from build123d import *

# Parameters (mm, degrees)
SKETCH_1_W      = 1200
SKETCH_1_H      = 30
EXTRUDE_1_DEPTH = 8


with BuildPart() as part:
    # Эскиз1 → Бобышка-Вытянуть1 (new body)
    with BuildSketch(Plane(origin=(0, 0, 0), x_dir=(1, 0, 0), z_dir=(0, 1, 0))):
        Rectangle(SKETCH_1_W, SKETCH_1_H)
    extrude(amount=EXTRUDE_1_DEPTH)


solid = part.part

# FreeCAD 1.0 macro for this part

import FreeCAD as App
import Part
import Sketcher

V = App.Vector
Q = App.Units.Quantity


def add_polygon(sketch, points):
    """Adds a closed chain of lines whose ends are joined by coincident constraints."""
    first, n = sketch.GeometryCount, len(points)
    for a, b in zip(points, points[1:] + points[:1]):
        sketch.addGeometry(Part.LineSegment(App.Vector(*a, 0), App.Vector(*b, 0)), False)
    for i in range(n):
        sketch.addConstraint(Sketcher.Constraint("Coincident", first + i, 2, first + (i + 1) % n, 1))

doc = App.newDocument("Part")
params = doc.addObject("Spreadsheet::Sheet", "Params")
for row, (alias, value) in enumerate([
    ("sketch1_width", "1200 mm"),
    ("sketch1_height", "30 mm"),
    ("pad1_length", "8 mm"),
], start=1):
    params.set(f"A{row}", alias)
    params.set(f"B{row}", "=" + value)
    params.setAlias(f"B{row}", alias)

body = doc.addObject("PartDesign::Body", "Body")

# Sketch on XZ plane
sketch1 = body.newObject("Sketcher::SketchObject", "Sketch")
sketch1.AttachmentSupport = (doc.getObject("XZ_Plane"), [""])
sketch1.MapMode = "FlatFace"
add_polygon(sketch1, [(-600, -15), (-600, 15), (600, 15), (600, -15)])  # lines 0-3
sketch1.addConstraint(Sketcher.Constraint("Vertical", 0))
sketch1.addConstraint(Sketcher.Constraint("Horizontal", 1))
sketch1.addConstraint(Sketcher.Constraint("Vertical", 2))
sketch1.addConstraint(Sketcher.Constraint("Horizontal", 3))
sketch1.addConstraint(Sketcher.Constraint("Symmetric", 0, 2, 2, 2, -1, 1))
sketch1.addConstraint(Sketcher.Constraint("DistanceX", 1, 1, 1, 2, Q("1200 mm")))
sketch1.addConstraint(Sketcher.Constraint("DistanceY", 0, 1, 0, 2, Q("30 mm")))
sketch1.setExpression("Constraints[9]", "Params.sketch1_width")
sketch1.setExpression("Constraints[10]", "Params.sketch1_height")
pad1 = body.newObject("PartDesign::Pad", "Pad")
pad1.Profile = sketch1
pad1.setExpression("Length", "Params.pad1_length")
pad1.Reversed = True

doc.recompute()
